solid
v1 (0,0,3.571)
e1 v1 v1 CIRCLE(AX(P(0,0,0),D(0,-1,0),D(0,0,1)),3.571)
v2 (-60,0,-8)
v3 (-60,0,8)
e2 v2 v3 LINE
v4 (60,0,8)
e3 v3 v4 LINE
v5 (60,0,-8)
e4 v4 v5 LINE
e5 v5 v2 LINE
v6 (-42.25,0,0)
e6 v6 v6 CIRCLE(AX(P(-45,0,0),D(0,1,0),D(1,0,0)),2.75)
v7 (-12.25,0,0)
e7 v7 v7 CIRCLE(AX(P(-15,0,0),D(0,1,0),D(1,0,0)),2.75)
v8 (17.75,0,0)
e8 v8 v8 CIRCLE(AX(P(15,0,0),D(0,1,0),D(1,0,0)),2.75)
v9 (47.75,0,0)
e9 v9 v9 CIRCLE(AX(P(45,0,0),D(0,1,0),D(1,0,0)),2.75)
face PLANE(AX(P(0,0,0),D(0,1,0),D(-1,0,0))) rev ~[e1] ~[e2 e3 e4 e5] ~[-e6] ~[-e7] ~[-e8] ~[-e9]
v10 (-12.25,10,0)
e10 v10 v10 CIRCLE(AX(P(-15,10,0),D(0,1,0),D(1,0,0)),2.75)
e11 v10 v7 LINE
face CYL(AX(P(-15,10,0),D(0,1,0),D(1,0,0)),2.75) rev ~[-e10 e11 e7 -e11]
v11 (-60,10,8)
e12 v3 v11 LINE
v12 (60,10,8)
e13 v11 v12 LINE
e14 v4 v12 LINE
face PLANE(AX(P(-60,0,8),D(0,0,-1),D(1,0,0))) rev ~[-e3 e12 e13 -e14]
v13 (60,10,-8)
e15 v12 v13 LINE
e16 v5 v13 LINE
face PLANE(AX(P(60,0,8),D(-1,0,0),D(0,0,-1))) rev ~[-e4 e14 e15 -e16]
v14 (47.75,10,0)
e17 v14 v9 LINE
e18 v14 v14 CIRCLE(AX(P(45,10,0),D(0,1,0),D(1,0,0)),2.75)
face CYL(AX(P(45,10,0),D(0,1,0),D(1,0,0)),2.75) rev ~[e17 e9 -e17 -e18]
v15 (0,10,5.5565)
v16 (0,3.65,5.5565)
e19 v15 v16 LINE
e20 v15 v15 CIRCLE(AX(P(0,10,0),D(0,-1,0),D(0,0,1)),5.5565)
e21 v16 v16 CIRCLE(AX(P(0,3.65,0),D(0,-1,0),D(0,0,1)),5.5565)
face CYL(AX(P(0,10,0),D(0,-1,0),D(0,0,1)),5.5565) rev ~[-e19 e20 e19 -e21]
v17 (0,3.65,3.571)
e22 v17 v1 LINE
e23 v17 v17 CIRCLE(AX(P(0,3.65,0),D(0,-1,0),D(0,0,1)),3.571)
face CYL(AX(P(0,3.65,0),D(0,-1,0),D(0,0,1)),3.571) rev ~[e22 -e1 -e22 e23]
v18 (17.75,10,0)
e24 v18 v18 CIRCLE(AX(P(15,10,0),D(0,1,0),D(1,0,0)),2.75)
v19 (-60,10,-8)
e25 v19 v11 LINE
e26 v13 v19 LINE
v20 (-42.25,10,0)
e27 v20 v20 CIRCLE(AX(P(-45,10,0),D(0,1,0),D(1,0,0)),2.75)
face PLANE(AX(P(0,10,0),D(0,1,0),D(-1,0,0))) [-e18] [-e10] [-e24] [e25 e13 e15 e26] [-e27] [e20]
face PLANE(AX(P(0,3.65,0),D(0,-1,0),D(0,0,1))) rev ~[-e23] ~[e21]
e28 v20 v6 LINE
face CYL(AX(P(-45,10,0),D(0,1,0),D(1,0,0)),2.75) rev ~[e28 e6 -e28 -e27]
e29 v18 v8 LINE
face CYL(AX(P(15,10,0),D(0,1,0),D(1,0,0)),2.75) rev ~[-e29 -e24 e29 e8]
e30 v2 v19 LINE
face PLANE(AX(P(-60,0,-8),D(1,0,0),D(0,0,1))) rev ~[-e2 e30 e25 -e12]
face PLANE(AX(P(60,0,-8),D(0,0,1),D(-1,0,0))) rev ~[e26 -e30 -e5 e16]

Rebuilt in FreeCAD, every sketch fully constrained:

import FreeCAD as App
import Part
import Sketcher


def add_polygon(sketch, points):
    """Adds a closed chain of lines whose ends are joined by coincident constraints."""
    first, n = sketch.GeometryCount, len(points)
    for a, b in zip(points, points[1:] + points[:1]):
        sketch.addGeometry(Part.LineSegment(App.Vector(*a, 0), App.Vector(*b, 0)), False)
    for i in range(n):
        sketch.addConstraint(Sketcher.Constraint("Coincident", first + i, 2, first + (i + 1) % n, 1))

doc = App.newDocument("Part")
body = doc.addObject("PartDesign::Body", "Body")

# Sketch on XZ plane
sketch1 = doc.addObject("Sketcher::SketchObject", "Sketch")
body.addObject(sketch1)
sketch1.AttachmentSupport = (doc.XZ_Plane, [""])
sketch1.MapMode = "FlatFace"
add_polygon(sketch1, [(-60, -8), (-60, 8), (60, 8), (60, -8)])  # lines 0-3
sketch1.addConstraint([
    Sketcher.Constraint("Vertical", 0),
    Sketcher.Constraint("Horizontal", 1),
    Sketcher.Constraint("Vertical", 2),
    Sketcher.Constraint("Horizontal", 3),
    Sketcher.Constraint("Symmetric", 0, 2, 2, 2, -1, 1),
    Sketcher.Constraint("DistanceX", 1, 1, 1, 2, 120.0),
    Sketcher.Constraint("DistanceY", 0, 1, 0, 2, 16.0),
])
pad1 = doc.addObject("PartDesign::Pad", "Pad")
body.addObject(pad1)
pad1.Profile = sketch1
pad1.Length = 10
pad1.Reversed = True

# Sketch on XZ plane
sketch2 = doc.addObject("Sketcher::SketchObject", "Sketch001")
body.addObject(sketch2)
sketch2.AttachmentSupport = (doc.XZ_Plane, [""])
sketch2.MapMode = "FlatFace"
sketch2.AttachmentOffset = App.Placement(App.Vector(0, 0, -10), App.Rotation())
sketch2.addGeometry(Part.Circle(App.Vector(0, 0, 0), App.Vector(0, 0, 1), 3.571), False)
sketch2.addConstraint([
    Sketcher.Constraint("Coincident", 0, 3, -1, 1),
    Sketcher.Constraint("Diameter", 0, 7.142),
])
doc.recompute()
hole = doc.addObject("PartDesign::Hole", "Hole")
body.addObject(hole)
hole.Profile = sketch2
hole.ThreadType = "None"
hole.Diameter = 7.142
hole.DepthType = "Dimension"
hole.Depth = 25.4
hole.DrillPoint = "Flat"
hole.HoleCutType = "Counterbore"
hole.HoleCutDiameter = 11.113
hole.HoleCutDepth = 6.35
hole.Reversed = True

# Sketch on XZ plane
sketch3 = doc.addObject("Sketcher::SketchObject", "Sketch002")
body.addObject(sketch3)
sketch3.AttachmentSupport = (doc.XZ_Plane, [""])
sketch3.MapMode = "FlatFace"
sketch3.AttachmentOffset = App.Placement(App.Vector(0, 0, -10), App.Rotation())
sketch3.addGeometry([
    Part.Circle(App.Vector(15, 0, 0), App.Vector(0, 0, 1), 2.75),
    Part.Circle(App.Vector(45, 0, 0), App.Vector(0, 0, 1), 2.75),
    Part.Circle(App.Vector(-15, 0, 0), App.Vector(0, 0, 1), 2.75),
    Part.Circle(App.Vector(-45, 0, 0), App.Vector(0, 0, 1), 2.75),
], False)
sketch3.addConstraint([
    Sketcher.Constraint("Equal", 0, 1),
    Sketcher.Constraint("Equal", 1, 2),
    Sketcher.Constraint("Equal", 2, 3),
    Sketcher.Constraint("Symmetric", 0, 3, 2, 3, -1, 1),
    Sketcher.Constraint("Symmetric", 1, 3, 3, 3, -1, 1),
    Sketcher.Constraint("PointOnObject", 0, 3, -1),
    Sketcher.Constraint("PointOnObject", 1, 3, -1),
    Sketcher.Constraint("Diameter", 0, 5.5),
    Sketcher.Constraint("DistanceX", -1, 1, 0, 3, 15.0),
    Sketcher.Constraint("DistanceX", 0, 3, 1, 3, 30.0),
])
pocket1 = doc.addObject("PartDesign::Pocket", "Pocket")
body.addObject(pocket1)
pocket1.Profile = sketch3
pocket1.Length = 10
pocket1.Reversed = True

doc.recompute()
